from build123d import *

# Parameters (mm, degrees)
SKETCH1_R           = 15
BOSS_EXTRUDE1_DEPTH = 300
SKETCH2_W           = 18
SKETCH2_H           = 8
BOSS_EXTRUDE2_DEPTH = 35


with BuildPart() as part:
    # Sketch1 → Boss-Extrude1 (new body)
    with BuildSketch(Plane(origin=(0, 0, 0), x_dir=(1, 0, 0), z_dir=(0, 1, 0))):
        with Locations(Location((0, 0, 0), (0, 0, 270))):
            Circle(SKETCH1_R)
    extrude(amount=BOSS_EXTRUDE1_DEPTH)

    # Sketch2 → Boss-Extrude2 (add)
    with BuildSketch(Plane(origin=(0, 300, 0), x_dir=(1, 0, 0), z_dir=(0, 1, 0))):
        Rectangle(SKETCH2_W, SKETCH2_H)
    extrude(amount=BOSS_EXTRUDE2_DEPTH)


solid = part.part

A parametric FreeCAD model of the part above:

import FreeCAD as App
import Part
import Sketcher

V = App.Vector


def add_polygon(sketch, points):
    """Adds a closed chain of lines whose ends are joined by coincident constraints."""
    first, n = sketch.GeometryCount, len(points)
    for a, b in zip(points, points[1:] + points[:1]):
        sketch.addGeometry(Part.LineSegment(App.Vector(*a, 0), App.Vector(*b, 0)), False)
    for i in range(n):
        sketch.addConstraint(Sketcher.Constraint("Coincident", first + i, 2, first + (i + 1) % n, 1))

doc = App.newDocument("Part")
body = doc.addObject("PartDesign::Body", "Body")

# Sketch on XZ plane
sketch1 = body.newObject("Sketcher::SketchObject", "Sketch")
sketch1.AttachmentSupport = (doc.getObject("XZ_Plane"), [""])
sketch1.MapMode = "FlatFace"
sketch1.addGeometry(Part.Circle(V(0, 0, 0), V(0, 0, 1), 15), False)
sketch1.addConstraint(Sketcher.Constraint("Coincident", 0, 3, -1, 1))
sketch1.addConstraint(Sketcher.Constraint("Diameter", 0, 30.0))
pad1 = body.newObject("PartDesign::Pad", "Pad")
pad1.Profile = sketch1
pad1.Length = 300
pad1.Reversed = True

# Sketch on XZ plane
sketch2 = body.newObject("Sketcher::SketchObject", "Sketch001")
sketch2.AttachmentSupport = (doc.getObject("XZ_Plane"), [""])
sketch2.MapMode = "FlatFace"
sketch2.AttachmentOffset = App.Placement(V(0, 0, -300), App.Rotation())
add_polygon(sketch2, [(-9, -4), (-9, 4), (9, 4), (9, -4)])  # lines 0-3
sketch2.addConstraint(Sketcher.Constraint("Vertical", 0))
sketch2.addConstraint(Sketcher.Constraint("Horizontal", 1))
sketch2.addConstraint(Sketcher.Constraint("Vertical", 2))
sketch2.addConstraint(Sketcher.Constraint("Horizontal", 3))
sketch2.addConstraint(Sketcher.Constraint("Symmetric", 0, 2, 2, 2, -1, 1))
sketch2.addConstraint(Sketcher.Constraint("DistanceX", 1, 1, 1, 2, 18.0))
sketch2.addConstraint(Sketcher.Constraint("DistanceY", 0, 1, 0, 2, 8.0))
pad2 = body.newObject("PartDesign::Pad", "Pad001")
pad2.Profile = sketch2
pad2.Length = 35
pad2.Reversed = True

doc.recompute()
